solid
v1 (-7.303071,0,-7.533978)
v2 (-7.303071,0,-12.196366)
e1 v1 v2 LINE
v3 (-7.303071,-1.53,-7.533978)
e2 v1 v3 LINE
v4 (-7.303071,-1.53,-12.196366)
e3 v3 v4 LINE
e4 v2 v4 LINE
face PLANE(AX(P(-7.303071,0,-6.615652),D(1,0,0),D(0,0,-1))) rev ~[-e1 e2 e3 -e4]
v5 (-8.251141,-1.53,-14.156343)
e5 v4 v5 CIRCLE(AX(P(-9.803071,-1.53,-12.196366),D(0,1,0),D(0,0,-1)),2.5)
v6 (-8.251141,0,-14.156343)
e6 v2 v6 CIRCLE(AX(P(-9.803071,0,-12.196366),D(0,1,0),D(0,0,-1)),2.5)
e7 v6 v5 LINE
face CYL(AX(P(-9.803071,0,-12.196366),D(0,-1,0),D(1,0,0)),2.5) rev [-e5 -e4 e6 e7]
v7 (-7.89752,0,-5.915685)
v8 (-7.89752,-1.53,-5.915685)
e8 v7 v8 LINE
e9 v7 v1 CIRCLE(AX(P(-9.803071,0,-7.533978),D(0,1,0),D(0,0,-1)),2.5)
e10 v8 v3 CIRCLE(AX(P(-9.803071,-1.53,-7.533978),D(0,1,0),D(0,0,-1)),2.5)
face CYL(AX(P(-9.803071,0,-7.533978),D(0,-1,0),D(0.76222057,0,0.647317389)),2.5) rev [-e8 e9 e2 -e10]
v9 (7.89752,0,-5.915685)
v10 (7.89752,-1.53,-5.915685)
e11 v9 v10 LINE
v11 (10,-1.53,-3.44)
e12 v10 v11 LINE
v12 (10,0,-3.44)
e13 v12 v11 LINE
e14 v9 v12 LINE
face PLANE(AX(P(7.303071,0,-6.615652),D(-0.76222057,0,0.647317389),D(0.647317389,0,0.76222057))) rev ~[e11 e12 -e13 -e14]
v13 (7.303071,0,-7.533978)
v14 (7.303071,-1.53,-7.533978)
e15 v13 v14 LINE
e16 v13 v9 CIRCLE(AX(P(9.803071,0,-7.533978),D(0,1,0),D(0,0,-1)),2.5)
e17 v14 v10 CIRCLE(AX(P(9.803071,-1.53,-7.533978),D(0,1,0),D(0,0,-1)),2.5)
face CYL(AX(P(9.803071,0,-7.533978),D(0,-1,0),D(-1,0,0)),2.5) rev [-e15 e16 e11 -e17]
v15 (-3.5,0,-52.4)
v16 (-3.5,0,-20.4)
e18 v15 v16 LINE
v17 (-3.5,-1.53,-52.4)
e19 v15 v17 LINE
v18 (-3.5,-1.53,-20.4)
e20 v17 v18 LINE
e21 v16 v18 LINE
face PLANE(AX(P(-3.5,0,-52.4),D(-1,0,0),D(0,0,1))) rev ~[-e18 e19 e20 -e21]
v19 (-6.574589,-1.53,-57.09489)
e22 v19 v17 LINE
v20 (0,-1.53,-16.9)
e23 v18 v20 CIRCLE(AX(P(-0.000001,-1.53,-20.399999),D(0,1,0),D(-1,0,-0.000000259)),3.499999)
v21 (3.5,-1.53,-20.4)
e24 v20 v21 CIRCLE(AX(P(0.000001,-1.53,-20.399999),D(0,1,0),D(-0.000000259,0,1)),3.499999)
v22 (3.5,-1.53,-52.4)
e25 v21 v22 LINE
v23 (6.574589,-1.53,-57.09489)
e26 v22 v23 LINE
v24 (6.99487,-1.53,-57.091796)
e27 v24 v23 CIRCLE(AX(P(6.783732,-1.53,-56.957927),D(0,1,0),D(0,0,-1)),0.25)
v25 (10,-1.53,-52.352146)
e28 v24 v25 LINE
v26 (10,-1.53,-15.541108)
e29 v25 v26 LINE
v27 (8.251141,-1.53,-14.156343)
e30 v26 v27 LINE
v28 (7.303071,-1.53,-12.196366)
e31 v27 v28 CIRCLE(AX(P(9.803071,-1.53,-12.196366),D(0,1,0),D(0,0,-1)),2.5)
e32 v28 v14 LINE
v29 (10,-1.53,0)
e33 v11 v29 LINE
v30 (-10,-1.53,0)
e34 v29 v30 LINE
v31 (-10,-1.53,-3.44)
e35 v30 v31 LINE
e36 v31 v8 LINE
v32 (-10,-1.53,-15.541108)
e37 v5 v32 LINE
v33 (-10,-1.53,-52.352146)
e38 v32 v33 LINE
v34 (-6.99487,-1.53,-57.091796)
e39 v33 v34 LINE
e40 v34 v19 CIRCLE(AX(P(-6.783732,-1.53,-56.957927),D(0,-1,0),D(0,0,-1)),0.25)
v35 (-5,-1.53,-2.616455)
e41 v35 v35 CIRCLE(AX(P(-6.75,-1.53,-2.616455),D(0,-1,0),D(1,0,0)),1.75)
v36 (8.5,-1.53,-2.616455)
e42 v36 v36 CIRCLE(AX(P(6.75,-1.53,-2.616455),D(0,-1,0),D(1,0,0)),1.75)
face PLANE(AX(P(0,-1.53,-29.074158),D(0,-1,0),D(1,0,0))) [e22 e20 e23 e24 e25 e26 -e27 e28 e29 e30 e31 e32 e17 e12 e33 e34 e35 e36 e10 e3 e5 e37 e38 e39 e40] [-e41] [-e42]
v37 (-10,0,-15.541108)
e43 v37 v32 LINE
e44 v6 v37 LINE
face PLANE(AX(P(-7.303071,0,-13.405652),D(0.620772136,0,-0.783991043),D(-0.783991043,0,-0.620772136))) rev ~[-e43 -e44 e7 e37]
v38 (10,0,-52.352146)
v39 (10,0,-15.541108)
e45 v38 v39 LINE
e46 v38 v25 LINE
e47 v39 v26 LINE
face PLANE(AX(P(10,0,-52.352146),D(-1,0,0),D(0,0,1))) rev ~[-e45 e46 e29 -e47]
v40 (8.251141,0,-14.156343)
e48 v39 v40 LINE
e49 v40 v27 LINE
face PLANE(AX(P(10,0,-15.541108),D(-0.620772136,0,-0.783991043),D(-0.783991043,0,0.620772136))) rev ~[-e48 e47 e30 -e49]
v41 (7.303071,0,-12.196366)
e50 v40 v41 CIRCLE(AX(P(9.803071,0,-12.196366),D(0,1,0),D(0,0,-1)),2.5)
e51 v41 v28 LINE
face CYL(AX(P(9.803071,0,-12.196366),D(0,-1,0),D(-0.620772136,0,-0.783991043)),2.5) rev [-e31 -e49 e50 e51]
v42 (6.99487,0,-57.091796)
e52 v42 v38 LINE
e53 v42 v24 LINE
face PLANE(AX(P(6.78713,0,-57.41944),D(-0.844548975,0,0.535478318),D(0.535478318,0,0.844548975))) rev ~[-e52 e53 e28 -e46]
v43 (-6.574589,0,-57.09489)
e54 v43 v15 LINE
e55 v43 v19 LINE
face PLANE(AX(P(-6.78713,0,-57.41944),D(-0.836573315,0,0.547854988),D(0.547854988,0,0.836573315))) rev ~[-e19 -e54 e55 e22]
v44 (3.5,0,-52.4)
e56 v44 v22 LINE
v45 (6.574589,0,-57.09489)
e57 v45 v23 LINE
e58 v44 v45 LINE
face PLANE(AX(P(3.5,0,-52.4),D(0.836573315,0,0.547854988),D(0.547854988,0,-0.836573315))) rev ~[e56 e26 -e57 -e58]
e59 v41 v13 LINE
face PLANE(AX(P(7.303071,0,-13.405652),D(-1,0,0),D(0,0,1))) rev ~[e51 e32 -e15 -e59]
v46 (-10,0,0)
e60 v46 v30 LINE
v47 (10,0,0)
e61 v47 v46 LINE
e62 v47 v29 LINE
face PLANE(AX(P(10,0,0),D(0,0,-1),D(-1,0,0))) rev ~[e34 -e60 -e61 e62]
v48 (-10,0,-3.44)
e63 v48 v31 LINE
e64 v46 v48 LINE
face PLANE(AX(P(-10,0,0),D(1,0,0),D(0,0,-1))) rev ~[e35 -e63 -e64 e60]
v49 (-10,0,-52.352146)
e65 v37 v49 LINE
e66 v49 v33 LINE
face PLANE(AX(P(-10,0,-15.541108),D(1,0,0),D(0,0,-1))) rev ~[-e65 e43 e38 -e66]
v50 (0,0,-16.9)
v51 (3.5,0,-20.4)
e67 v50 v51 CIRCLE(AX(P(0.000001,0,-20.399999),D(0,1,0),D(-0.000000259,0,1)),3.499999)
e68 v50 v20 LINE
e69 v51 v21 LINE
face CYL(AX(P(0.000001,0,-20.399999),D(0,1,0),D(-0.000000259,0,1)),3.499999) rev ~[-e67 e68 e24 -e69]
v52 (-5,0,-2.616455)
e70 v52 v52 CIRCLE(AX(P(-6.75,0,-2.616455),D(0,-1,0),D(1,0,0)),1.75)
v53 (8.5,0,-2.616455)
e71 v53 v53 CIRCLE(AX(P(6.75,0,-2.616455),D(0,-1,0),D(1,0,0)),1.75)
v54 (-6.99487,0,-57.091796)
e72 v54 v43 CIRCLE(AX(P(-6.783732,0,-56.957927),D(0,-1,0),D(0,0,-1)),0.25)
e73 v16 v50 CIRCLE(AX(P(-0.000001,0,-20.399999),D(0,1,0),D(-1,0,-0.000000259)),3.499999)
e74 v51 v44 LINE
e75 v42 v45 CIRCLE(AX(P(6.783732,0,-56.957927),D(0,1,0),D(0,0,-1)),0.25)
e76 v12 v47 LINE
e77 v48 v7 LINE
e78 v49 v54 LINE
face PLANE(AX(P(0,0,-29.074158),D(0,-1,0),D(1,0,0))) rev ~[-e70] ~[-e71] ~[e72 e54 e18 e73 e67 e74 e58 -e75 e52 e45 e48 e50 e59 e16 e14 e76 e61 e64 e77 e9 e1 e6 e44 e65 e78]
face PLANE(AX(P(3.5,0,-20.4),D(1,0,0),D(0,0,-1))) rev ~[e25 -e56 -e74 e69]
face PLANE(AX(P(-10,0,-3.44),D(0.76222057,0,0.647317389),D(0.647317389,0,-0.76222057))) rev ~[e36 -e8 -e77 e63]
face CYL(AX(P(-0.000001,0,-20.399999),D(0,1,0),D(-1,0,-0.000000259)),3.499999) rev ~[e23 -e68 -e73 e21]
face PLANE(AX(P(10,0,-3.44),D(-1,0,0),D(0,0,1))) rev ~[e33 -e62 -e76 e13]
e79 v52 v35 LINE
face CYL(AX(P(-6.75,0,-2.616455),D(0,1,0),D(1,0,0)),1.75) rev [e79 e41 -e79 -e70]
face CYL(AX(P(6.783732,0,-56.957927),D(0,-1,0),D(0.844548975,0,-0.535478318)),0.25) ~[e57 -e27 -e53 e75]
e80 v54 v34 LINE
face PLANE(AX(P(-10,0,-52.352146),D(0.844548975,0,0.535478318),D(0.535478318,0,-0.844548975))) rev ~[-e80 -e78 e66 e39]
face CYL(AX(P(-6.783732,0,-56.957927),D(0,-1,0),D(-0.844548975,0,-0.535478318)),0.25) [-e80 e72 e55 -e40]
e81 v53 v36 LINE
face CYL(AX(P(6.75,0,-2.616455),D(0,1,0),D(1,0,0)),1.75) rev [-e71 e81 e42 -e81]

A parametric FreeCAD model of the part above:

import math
import FreeCAD as App
import Part
import Sketcher

V = App.Vector
Q = App.Units.Quantity


def edges_at(feature, points):
    """Names of the edges that pass closest to the given points."""
    edges = feature.Shape.Edges
    near = lambda p: min(range(len(edges)), key=lambda i: edges[i].distToShape(Part.Vertex(*p))[0])
    return sorted({f"Edge{near(p) + 1}" for p in points})

doc = App.newDocument("Part")
body = doc.addObject("PartDesign::Body", "Body")

# Sketch on XZ plane
sketch1 = body.newObject("Sketcher::SketchObject", "Sketch")
sketch1.AttachmentSupport = (doc.getObject("XZ_Plane"), [""])
sketch1.MapMode = "FlatFace"
sketch1.addGeometry(Part.LineSegment(V(10, 0, 0), V(-10, 0, 0)), False)
sketch1.addGeometry(Part.LineSegment(V(-10, 0, 0), V(-10, -3.4, 0)), False)
sketch1.addGeometry(Part.LineSegment(V(-10, -3.4, 0), V(-7.3, -6.6, 0)), False)
sketch1.addGeometry(Part.LineSegment(V(-7.3, -6.6, 0), V(-7.3, -13.4, 0)), False)
sketch1.addGeometry(Part.LineSegment(V(-7.3, -13.4, 0), V(-10, -15.5, 0)), False)
sketch1.addGeometry(Part.LineSegment(V(-10, -15.5, 0), V(-10, -52.4, 0)), False)
sketch1.addGeometry(Part.LineSegment(V(-10, -52.4, 0), V(-6.8, -57.4, 0)), False)
sketch1.addGeometry(Part.LineSegment(V(-6.8, -57.4, 0), V(-3.5, -52.4, 0)), False)
sketch1.addGeometry(Part.LineSegment(V(-3.5, -52.4, 0), V(-3.5, -20.4, 0)), False)
sketch1.addGeometry(Part.ArcOfCircle(Part.Circle(V(0, -20.4, 0), V(0, 0, 1), 3.5), math.radians(90), math.radians(180)), False)
sketch1.addGeometry(Part.ArcOfCircle(Part.Circle(V(0, -20.4, 0), V(0, 0, 1), 3.5), math.radians(0), math.radians(90)), False)
sketch1.addGeometry(Part.LineSegment(V(3.5, -20.4, 0), V(3.5, -52.4, 0)), False)
sketch1.addGeometry(Part.LineSegment(V(3.5, -52.4, 0), V(6.8, -57.4, 0)), False)
sketch1.addGeometry(Part.LineSegment(V(6.8, -57.4, 0), V(10, -52.4, 0)), False)
sketch1.addGeometry(Part.LineSegment(V(10, -52.4, 0), V(10, -15.5, 0)), False)
sketch1.addGeometry(Part.LineSegment(V(10, -15.5, 0), V(7.3, -13.4, 0)), False)
sketch1.addGeometry(Part.LineSegment(V(7.3, -13.4, 0), V(7.3, -6.6, 0)), False)
sketch1.addGeometry(Part.LineSegment(V(7.3, -6.6, 0), V(10, -3.4, 0)), False)
sketch1.addGeometry(Part.LineSegment(V(10, -3.4, 0), V(10, 0, 0)), False)
sketch1.addGeometry(Part.Circle(V(-6.8, -2.6, 0), V(0, 0, 1), 1.8), False)
sketch1.addGeometry(Part.Circle(V(6.8, -2.6, 0), V(0, 0, 1), 1.8), False)
sketch1.addConstraint(Sketcher.Constraint("Coincident", 0, 2, 1, 1))
sketch1.addConstraint(Sketcher.Constraint("Coincident", 1, 2, 2, 1))
sketch1.addConstraint(Sketcher.Constraint("Coincident", 2, 2, 3, 1))
sketch1.addConstraint(Sketcher.Constraint("Coincident", 3, 2, 4, 1))
sketch1.addConstraint(Sketcher.Constraint("Coincident", 4, 2, 5, 1))
sketch1.addConstraint(Sketcher.Constraint("Coincident", 5, 2, 6, 1))
sketch1.addConstraint(Sketcher.Constraint("Coincident", 6, 2, 7, 1))
sketch1.addConstraint(Sketcher.Constraint("Coincident", 7, 2, 8, 1))
sketch1.addConstraint(Sketcher.Constraint("Tangent", 8, 2, 9, 2))
sketch1.addConstraint(Sketcher.Constraint("Tangent", 9, 1, 10, 2))
sketch1.addConstraint(Sketcher.Constraint("Tangent", 10, 1, 11, 1))
sketch1.addConstraint(Sketcher.Constraint("Coincident", 11, 2, 12, 1))
sketch1.addConstraint(Sketcher.Constraint("Coincident", 12, 2, 13, 1))
sketch1.addConstraint(Sketcher.Constraint("Coincident", 13, 2, 14, 1))
sketch1.addConstraint(Sketcher.Constraint("Coincident", 14, 2, 15, 1))
sketch1.addConstraint(Sketcher.Constraint("Coincident", 15, 2, 16, 1))
sketch1.addConstraint(Sketcher.Constraint("Coincident", 16, 2, 17, 1))
sketch1.addConstraint(Sketcher.Constraint("Coincident", 17, 2, 18, 1))
sketch1.addConstraint(Sketcher.Constraint("Coincident", 18, 2, 0, 1))
sketch1.addConstraint(Sketcher.Constraint("Horizontal", 0))
sketch1.addConstraint(Sketcher.Constraint("Vertical", 1))
sketch1.addConstraint(Sketcher.Constraint("Vertical", 3))
sketch1.addConstraint(Sketcher.Constraint("Vertical", 5))
sketch1.addConstraint(Sketcher.Constraint("Vertical", 8))
sketch1.addConstraint(Sketcher.Constraint("Vertical", 11))
sketch1.addConstraint(Sketcher.Constraint("Vertical", 14))
sketch1.addConstraint(Sketcher.Constraint("Vertical", 16))
sketch1.addConstraint(Sketcher.Constraint("Vertical", 18))
sketch1.addConstraint(Sketcher.Constraint("Equal", 9, 10))
sketch1.addConstraint(Sketcher.Constraint("Equal", 19, 20))
sketch1.addConstraint(Sketcher.Constraint("Symmetric", 0, 2, 18, 2, -1, 1))
sketch1.addConstraint(Sketcher.Constraint("Symmetric", 19, 3, 20, 3, -2))
sketch1.addConstraint(Sketcher.Constraint("Symmetric", 7, 2, 11, 2, -2))
sketch1.addConstraint(Sketcher.Constraint("Symmetric", 6, 2, 12, 2, -2))
sketch1.addConstraint(Sketcher.Constraint("Symmetric", 5, 2, 13, 2, -2))
sketch1.addConstraint(Sketcher.Constraint("Symmetric", 3, 2, 15, 2, -2))
sketch1.addConstraint(Sketcher.Constraint("PointOnObject", 9, 1, -2))
sketch1.addConstraint(Sketcher.Constraint("Horizontal", 4, 2, 14, 2))
sketch1.addConstraint(Sketcher.Constraint("Horizontal", 2, 2, 16, 2))
sketch1.addConstraint(Sketcher.Constraint("Horizontal", 1, 2, 17, 2))
sketch1.addConstraint(Sketcher.Constraint("Vertical", 1, 2, 4, 2))
sketch1.addConstraint(Sketcher.Constraint("Equal", 6, 7))
sketch1.addConstraint(Sketcher.Constraint("Diameter", 19, 3.5))
sketch1.addConstraint(Sketcher.Constraint("Radius", 9, 3.499999))
sketch1.addConstraint(Sketcher.Constraint("DistanceX", 0, 2, 0, 1, 20.0))
sketch1.addConstraint(Sketcher.Constraint("DistanceY", 8, 1, 8, 2, 32.0))
sketch1.addConstraint(Sketcher.Constraint("Distance", 6, 6.0))
sketch1.addConstraint(Sketcher.Constraint("DistanceY", 1, 2, 1, 1, 3.44))
sketch1.addConstraint(Sketcher.Constraint("DistanceY", 3, 2, 3, 1, 6.79))
sketch1.addConstraint(Sketcher.Constraint("DistanceY", 9, 3, -1, 1, 20.399999))
sketch1.addConstraint(Sketcher.Constraint("Angle", 7, Q("56.78002 deg")))
sketch1.addConstraint(Sketcher.Constraint("DistanceX", 19, 3, 20, 3, 13.5))
sketch1.addConstraint(Sketcher.Constraint("Distance", 4, 3.44))
sketch1.addConstraint(Sketcher.Constraint("DistanceY", 5, 2, 5, 1, 36.811038))
sketch1.addConstraint(Sketcher.Constraint("DistanceX", 2, 2, -1, 1, 7.303071))
sketch1.addConstraint(Sketcher.Constraint("DistanceY", 19, 3, -1, 1, 2.616455))
pad1 = body.newObject("PartDesign::Pad", "Pad")
pad1.Profile = sketch1
pad1.Length = 1.53
doc.recompute()

fillet = body.newObject("PartDesign::Fillet", "Fillet")
fillet.Base = (pad1, edges_at(pad1, [(-6.787, -0.765, -57.419), (6.787, -0.765, -57.419)]))
fillet.Radius = 0.25
doc.recompute()

fillet2 = body.newObject("PartDesign::Fillet", "Fillet001")
fillet2.Base = (fillet, edges_at(fillet, [
    (-7.303, -0.765, -13.406),
    (-7.303, -0.765, -6.616),
    (7.303, -0.765, -6.616),
    (7.303, -0.765, -13.406),
]))
fillet2.Radius = 2.5

doc.recompute()
